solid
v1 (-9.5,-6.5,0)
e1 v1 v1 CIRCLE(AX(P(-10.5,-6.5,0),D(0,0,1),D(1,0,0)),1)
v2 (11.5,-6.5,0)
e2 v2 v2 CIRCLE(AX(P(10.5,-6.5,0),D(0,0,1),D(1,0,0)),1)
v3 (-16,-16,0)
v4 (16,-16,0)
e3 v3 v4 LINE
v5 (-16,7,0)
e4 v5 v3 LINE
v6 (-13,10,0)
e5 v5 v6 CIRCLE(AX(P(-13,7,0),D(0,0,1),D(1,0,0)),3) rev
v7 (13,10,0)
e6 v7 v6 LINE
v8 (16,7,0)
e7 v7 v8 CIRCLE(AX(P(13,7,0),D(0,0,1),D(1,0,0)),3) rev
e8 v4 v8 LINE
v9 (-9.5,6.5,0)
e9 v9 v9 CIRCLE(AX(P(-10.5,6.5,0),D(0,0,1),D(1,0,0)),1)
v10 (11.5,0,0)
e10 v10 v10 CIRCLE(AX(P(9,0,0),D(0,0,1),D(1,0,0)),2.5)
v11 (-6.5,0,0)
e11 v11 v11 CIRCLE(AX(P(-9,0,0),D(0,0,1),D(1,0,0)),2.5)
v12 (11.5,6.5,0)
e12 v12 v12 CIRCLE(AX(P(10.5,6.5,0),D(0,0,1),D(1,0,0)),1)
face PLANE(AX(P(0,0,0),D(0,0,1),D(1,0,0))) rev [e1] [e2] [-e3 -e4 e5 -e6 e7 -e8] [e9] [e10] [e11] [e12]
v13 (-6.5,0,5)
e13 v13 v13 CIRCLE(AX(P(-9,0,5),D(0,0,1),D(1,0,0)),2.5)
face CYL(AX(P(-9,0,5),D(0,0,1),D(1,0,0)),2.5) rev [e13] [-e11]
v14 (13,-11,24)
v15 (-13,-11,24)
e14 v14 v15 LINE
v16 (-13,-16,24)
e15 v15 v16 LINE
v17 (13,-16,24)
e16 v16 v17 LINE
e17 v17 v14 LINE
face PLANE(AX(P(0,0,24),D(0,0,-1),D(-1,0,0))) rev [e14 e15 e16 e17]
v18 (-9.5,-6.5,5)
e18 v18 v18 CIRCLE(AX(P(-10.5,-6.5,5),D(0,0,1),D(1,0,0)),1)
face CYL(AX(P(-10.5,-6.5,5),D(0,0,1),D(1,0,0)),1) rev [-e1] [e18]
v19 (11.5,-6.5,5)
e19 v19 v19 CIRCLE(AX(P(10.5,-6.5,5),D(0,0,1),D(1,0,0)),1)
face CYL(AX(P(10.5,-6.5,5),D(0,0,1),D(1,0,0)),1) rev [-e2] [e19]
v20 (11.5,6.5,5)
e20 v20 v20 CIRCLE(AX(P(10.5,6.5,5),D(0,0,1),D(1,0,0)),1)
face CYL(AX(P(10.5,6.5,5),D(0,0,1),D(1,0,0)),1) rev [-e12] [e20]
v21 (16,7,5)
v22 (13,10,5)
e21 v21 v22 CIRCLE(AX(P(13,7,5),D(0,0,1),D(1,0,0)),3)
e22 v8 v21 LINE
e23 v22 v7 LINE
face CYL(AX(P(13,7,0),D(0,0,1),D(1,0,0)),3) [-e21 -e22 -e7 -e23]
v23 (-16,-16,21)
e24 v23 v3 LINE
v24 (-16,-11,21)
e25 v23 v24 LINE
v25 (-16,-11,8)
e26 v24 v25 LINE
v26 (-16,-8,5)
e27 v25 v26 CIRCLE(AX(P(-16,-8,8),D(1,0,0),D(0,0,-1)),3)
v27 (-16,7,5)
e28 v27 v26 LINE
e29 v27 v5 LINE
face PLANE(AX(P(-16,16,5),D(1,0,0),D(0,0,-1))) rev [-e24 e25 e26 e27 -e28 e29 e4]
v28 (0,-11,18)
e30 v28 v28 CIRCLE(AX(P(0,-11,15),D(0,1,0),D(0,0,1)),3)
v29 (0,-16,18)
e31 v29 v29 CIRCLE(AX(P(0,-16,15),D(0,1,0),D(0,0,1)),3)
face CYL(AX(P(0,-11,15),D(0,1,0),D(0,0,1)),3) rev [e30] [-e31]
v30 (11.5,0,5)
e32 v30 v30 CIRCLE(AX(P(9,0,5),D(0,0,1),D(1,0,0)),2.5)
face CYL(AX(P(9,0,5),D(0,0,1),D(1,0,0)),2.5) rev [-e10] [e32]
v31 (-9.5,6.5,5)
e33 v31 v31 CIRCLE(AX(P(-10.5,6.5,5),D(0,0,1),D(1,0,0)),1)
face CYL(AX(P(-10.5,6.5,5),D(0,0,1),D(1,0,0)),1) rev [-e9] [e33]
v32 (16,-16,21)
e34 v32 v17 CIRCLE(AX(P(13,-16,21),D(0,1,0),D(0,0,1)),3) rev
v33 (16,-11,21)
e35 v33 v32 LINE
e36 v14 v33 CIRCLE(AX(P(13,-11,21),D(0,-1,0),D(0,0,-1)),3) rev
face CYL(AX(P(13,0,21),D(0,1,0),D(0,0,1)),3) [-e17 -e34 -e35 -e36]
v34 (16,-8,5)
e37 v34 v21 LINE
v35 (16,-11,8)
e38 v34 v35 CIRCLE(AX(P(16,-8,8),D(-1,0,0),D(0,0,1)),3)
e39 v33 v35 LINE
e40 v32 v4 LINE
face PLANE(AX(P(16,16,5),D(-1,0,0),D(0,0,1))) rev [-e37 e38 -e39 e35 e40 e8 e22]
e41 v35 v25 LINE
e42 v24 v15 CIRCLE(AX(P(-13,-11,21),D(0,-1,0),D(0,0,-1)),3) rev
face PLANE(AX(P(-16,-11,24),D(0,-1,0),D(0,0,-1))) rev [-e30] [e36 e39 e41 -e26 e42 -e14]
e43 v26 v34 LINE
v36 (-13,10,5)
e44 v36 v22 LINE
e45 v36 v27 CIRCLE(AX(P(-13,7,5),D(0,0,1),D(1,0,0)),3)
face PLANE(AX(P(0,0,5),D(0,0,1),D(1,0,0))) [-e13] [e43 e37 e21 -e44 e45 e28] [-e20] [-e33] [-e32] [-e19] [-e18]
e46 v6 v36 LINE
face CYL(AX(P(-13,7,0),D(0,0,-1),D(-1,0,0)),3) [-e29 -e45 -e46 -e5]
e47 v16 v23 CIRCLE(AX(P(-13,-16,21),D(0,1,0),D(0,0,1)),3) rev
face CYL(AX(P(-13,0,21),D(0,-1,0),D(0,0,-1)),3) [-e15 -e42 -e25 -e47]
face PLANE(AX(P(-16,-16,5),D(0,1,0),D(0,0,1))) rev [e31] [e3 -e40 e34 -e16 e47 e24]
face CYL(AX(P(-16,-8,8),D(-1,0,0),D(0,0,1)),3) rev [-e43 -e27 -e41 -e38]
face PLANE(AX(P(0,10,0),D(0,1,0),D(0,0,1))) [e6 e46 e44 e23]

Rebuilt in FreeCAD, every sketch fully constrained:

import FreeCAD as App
import Part
import Sketcher
Q = App.Units.Quantity


def edges_at(feature, points):
    """Names of the edges that pass closest to the given points."""
    edges = feature.Shape.Edges
    near = lambda p: min(range(len(edges)), key=lambda i: edges[i].distToShape(Part.Vertex(*p))[0])
    return sorted({f"Edge{near(p) + 1}" for p in points})


def add_polygon(sketch, points):
    """Adds a closed chain of lines whose ends are joined by coincident constraints."""
    first, n = sketch.GeometryCount, len(points)
    for a, b in zip(points, points[1:] + points[:1]):
        sketch.addGeometry(Part.LineSegment(App.Vector(*a, 0), App.Vector(*b, 0)), False)
    for i in range(n):
        sketch.addConstraint(Sketcher.Constraint("Coincident", first + i, 2, first + (i + 1) % n, 1))

doc = App.newDocument("Part")
body = doc.addObject("PartDesign::Body", "Body")

# Sketch on XY plane
sketch1 = body.newObject("Sketcher::SketchObject", "Sketch")
sketch1.AttachmentSupport = (doc.getObject("XY_Plane"), [""])
sketch1.MapMode = "FlatFace"
add_polygon(sketch1, [(-16, 16), (-16, -16), (16, -16), (16, 16)])  # lines 0-3
sketch1.addConstraint([
    Sketcher.Constraint("Vertical", 0),
    Sketcher.Constraint("Horizontal", 1),
    Sketcher.Constraint("Vertical", 2),
    Sketcher.Constraint("Horizontal", 3),
    Sketcher.Constraint("Symmetric", 0, 2, 2, 2, -1, 1),
    Sketcher.Constraint("Equal", 3, 0),
    Sketcher.Constraint("DistanceX", 1, 1, 1, 2, Q("32 mm")),
])
pad1 = body.newObject("PartDesign::Pad", "Pad")
pad1.Profile = sketch1
pad1.Length = 5

# Sketch on XY plane
sketch2 = body.newObject("Sketcher::SketchObject", "Sketch001")
sketch2.AttachmentSupport = (doc.getObject("XY_Plane"), [""])
sketch2.MapMode = "FlatFace"
sketch2.AttachmentOffset = App.Placement(App.Vector(0, 0, 5), App.Rotation())
sketch2.addGeometry([
    Part.Circle(App.Vector(-9, 0, 0), App.Vector(0, 0, 1), 2.5),
    Part.Circle(App.Vector(9, 0, 0), App.Vector(0, 0, 1), 2.5),
], False)
sketch2.addConstraint([
    Sketcher.Constraint("Equal", 0, 1),
    Sketcher.Constraint("Symmetric", 0, 3, 1, 3, -1, 1),
    Sketcher.Constraint("PointOnObject", 0, 3, -1),
    Sketcher.Constraint("Diameter", 0, Q("5 mm")),
    Sketcher.Constraint("DistanceX", 0, 3, -1, 1, Q("9 mm")),
])
doc.recompute()
hole = body.newObject("PartDesign::Hole", "Hole")
hole.Profile = sketch2
hole.ThreadType = "None"
hole.Diameter = 5
hole.DepthType = "ThroughAll"

# Sketch on XY plane
sketch3 = body.newObject("Sketcher::SketchObject", "Sketch002")
sketch3.AttachmentSupport = (doc.getObject("XY_Plane"), [""])
sketch3.MapMode = "FlatFace"
sketch3.AttachmentOffset = App.Placement(App.Vector(0, 0, 5), App.Rotation())
sketch3.addGeometry([
    Part.Circle(App.Vector(-10.5, 6.5, 0), App.Vector(0, 0, 1), 1),
    Part.Circle(App.Vector(10.5, 6.5, 0), App.Vector(0, 0, 1), 1),
    Part.Circle(App.Vector(10.5, -6.5, 0), App.Vector(0, 0, 1), 1),
    Part.Circle(App.Vector(-10.5, -6.5, 0), App.Vector(0, 0, 1), 1),
], False)
sketch3.addConstraint([
    Sketcher.Constraint("Equal", 0, 1),
    Sketcher.Constraint("Equal", 1, 2),
    Sketcher.Constraint("Equal", 2, 3),
    Sketcher.Constraint("Symmetric", 0, 3, 2, 3, -1, 1),
    Sketcher.Constraint("Symmetric", 1, 3, 3, 3, -1, 1),
    Sketcher.Constraint("Symmetric", 0, 3, 1, 3, -2),
    Sketcher.Constraint("Diameter", 0, Q("2 mm")),
    Sketcher.Constraint("DistanceX", 0, 3, 1, 3, Q("21 mm")),
    Sketcher.Constraint("DistanceY", 2, 3, 1, 3, Q("13 mm")),
])
doc.recompute()
hole2 = body.newObject("PartDesign::Hole", "Hole001")
hole2.Profile = sketch3
hole2.ThreadType = "None"
hole2.Diameter = 2
hole2.DepthType = "ThroughAll"

# Sketch on XY plane
sketch4 = body.newObject("Sketcher::SketchObject", "Sketch003")
sketch4.AttachmentSupport = (doc.getObject("XY_Plane"), [""])
sketch4.MapMode = "FlatFace"
sketch4.AttachmentOffset = App.Placement(App.Vector(0, 0, 5), App.Rotation())
add_polygon(sketch4, [(-16, -11), (-16, -16), (16, -16), (16, -11)])  # lines 0-3
sketch4.addConstraint([
    Sketcher.Constraint("Vertical", 0),
    Sketcher.Constraint("Horizontal", 1),
    Sketcher.Constraint("Vertical", 2),
    Sketcher.Constraint("Horizontal", 3),
    Sketcher.Constraint("DistanceX", 1, 1, 1, 2, Q("32 mm")),
    Sketcher.Constraint("DistanceY", 0, 2, 0, 1, Q("5 mm")),
    Sketcher.Constraint("DistanceX", 0, 2, -1, 1, Q("16 mm")),
    Sketcher.Constraint("DistanceY", 0, 2, -1, 1, Q("16 mm")),
])
pad2 = body.newObject("PartDesign::Pad", "Pad001")
pad2.Profile = sketch4
pad2.Length = 19

# Sketch on XZ plane
sketch5 = body.newObject("Sketcher::SketchObject", "Sketch004")
sketch5.AttachmentSupport = (doc.getObject("XZ_Plane"), [""])
sketch5.MapMode = "FlatFace"
sketch5.AttachmentOffset = App.Placement(App.Vector(0, 0, 11), App.Rotation())
sketch5.addGeometry(Part.Circle(App.Vector(0, 15, 0), App.Vector(0, 0, 1), 3), False)
sketch5.addConstraint([
    Sketcher.Constraint("PointOnObject", 0, 3, -2),
    Sketcher.Constraint("Diameter", 0, Q("6 mm")),
    Sketcher.Constraint("DistanceY", -1, 1, 0, 3, Q("15 mm")),
])
doc.recompute()
hole3 = body.newObject("PartDesign::Hole", "Hole002")
hole3.Profile = sketch5
hole3.ThreadType = "None"
hole3.Diameter = 6
hole3.DepthType = "ThroughAll"
hole3.Reversed = True

# Sketch on XZ plane
sketch6 = body.newObject("Sketcher::SketchObject", "Sketch005")
sketch6.AttachmentSupport = (doc.getObject("XZ_Plane"), [""])
sketch6.MapMode = "FlatFace"
sketch6.AttachmentOffset = App.Placement(App.Vector(0, 0, -16), App.Rotation())
add_polygon(sketch6, [(-16, 0), (-16, 5), (16, 5), (16, 0)])  # lines 0-3
sketch6.addConstraint([
    Sketcher.Constraint("Vertical", 0),
    Sketcher.Constraint("Horizontal", 1),
    Sketcher.Constraint("Vertical", 2),
    Sketcher.Constraint("Horizontal", 3),
    Sketcher.Constraint("Symmetric", 2, 2, 3, 2, -1, 1),
    Sketcher.Constraint("DistanceX", 1, 1, 1, 2, Q("32 mm")),
    Sketcher.Constraint("DistanceY", 0, 1, 0, 2, Q("5 mm")),
])
pocket1 = body.newObject("PartDesign::Pocket", "Pocket")
pocket1.Profile = sketch6
pocket1.Length = 6
pocket1.Reversed = True
doc.recompute()

fillet = body.newObject("PartDesign::Fillet", "Fillet")
fillet.Base = (pocket1, edges_at(pocket1, [
    (0, -11, 5),
    (-16, -13.5, 24),
    (16, -13.5, 24),
    (16, 10, 2.5),
    (-16, 10, 2.5),
]))
fillet.Radius = 3

doc.recompute()
